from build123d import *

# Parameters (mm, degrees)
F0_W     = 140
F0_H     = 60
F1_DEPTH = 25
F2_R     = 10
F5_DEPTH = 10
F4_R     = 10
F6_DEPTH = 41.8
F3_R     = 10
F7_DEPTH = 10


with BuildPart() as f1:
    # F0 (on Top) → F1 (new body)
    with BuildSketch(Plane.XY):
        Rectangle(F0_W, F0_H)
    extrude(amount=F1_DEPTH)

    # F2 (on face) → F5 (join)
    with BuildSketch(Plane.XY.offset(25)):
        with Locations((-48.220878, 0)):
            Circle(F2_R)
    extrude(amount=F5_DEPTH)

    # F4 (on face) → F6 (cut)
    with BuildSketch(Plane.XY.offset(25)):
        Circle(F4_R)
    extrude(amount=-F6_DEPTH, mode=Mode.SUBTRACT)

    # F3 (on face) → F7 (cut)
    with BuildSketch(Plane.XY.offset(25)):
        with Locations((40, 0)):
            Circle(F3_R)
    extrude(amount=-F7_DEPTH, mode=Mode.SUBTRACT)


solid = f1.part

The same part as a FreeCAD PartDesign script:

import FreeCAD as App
import Part
import Sketcher

V = App.Vector
Q = App.Units.Quantity


def add_polygon(sketch, points):
    """Adds a closed chain of lines whose ends are joined by coincident constraints."""
    first, n = sketch.GeometryCount, len(points)
    for a, b in zip(points, points[1:] + points[:1]):
        sketch.addGeometry(Part.LineSegment(App.Vector(*a, 0), App.Vector(*b, 0)), False)
    for i in range(n):
        sketch.addConstraint(Sketcher.Constraint("Coincident", first + i, 2, first + (i + 1) % n, 1))

doc = App.newDocument("Part")
body = doc.addObject("PartDesign::Body", "Body")

# Sketch on XY plane
sketch1 = doc.addObject("Sketcher::SketchObject", "Sketch")
body.addObject(sketch1)
sketch1.AttachmentSupport = (doc.XY_Plane, [""])
sketch1.MapMode = "FlatFace"
add_polygon(sketch1, [(-70, 30), (-70, -30), (70, -30), (70, 30)])  # lines 0-3
sketch1.addConstraint(Sketcher.Constraint("Vertical", 0))
sketch1.addConstraint(Sketcher.Constraint("Horizontal", 1))
sketch1.addConstraint(Sketcher.Constraint("Vertical", 2))
sketch1.addConstraint(Sketcher.Constraint("Horizontal", 3))
sketch1.addConstraint(Sketcher.Constraint("Symmetric", 0, 2, 2, 2, -1, 1))
sketch1.addConstraint(Sketcher.Constraint("DistanceX", 1, 1, 1, 2, Q("140 mm")))
sketch1.addConstraint(Sketcher.Constraint("DistanceY", 0, 2, 0, 1, Q("60 mm")))
pad1 = doc.addObject("PartDesign::Pad", "Pad")
body.addObject(pad1)
pad1.Profile = sketch1
pad1.Length = 25

# Sketch on XY plane
sketch2 = doc.addObject("Sketcher::SketchObject", "Sketch001")
body.addObject(sketch2)
sketch2.AttachmentSupport = (doc.XY_Plane, [""])
sketch2.MapMode = "FlatFace"
sketch2.AttachmentOffset = App.Placement(V(0, 0, 25), App.Rotation())
sketch2.addGeometry(Part.Circle(V(-48.220878, 0, 0), V(0, 0, 1), 10), False)
sketch2.addConstraint(Sketcher.Constraint("PointOnObject", 0, 3, -1))
sketch2.addConstraint(Sketcher.Constraint("Diameter", 0, Q("20 mm")))
sketch2.addConstraint(Sketcher.Constraint("DistanceX", 0, 3, -1, 1, Q("48.220878 mm")))
pad2 = doc.addObject("PartDesign::Pad", "Pad001")
body.addObject(pad2)
pad2.Profile = sketch2
pad2.Length = 10

# Sketch on XY plane
sketch3 = doc.addObject("Sketcher::SketchObject", "Sketch002")
body.addObject(sketch3)
sketch3.AttachmentSupport = (doc.XY_Plane, [""])
sketch3.MapMode = "FlatFace"
sketch3.AttachmentOffset = App.Placement(V(0, 0, 25), App.Rotation())
sketch3.addGeometry(Part.Circle(V(0, 0, 0), V(0, 0, 1), 10), False)
sketch3.addConstraint(Sketcher.Constraint("Coincident", 0, 3, -1, 1))
sketch3.addConstraint(Sketcher.Constraint("Diameter", 0, Q("20 mm")))
pocket1 = doc.addObject("PartDesign::Pocket", "Pocket")
body.addObject(pocket1)
pocket1.Profile = sketch3
pocket1.Length = 41.8

# Sketch on XY plane
sketch4 = doc.addObject("Sketcher::SketchObject", "Sketch003")
body.addObject(sketch4)
sketch4.AttachmentSupport = (doc.XY_Plane, [""])
sketch4.MapMode = "FlatFace"
sketch4.AttachmentOffset = App.Placement(V(0, 0, 25), App.Rotation())
sketch4.addGeometry(Part.Circle(V(40, 0, 0), V(0, 0, 1), 10), False)
sketch4.addConstraint(Sketcher.Constraint("PointOnObject", 0, 3, -1))
sketch4.addConstraint(Sketcher.Constraint("Diameter", 0, Q("20 mm")))
sketch4.addConstraint(Sketcher.Constraint("DistanceX", -1, 1, 0, 3, Q("40 mm")))
pocket2 = doc.addObject("PartDesign::Pocket", "Pocket001")
body.addObject(pocket2)
pocket2.Profile = sketch4
pocket2.Length = 10

doc.recompute()
